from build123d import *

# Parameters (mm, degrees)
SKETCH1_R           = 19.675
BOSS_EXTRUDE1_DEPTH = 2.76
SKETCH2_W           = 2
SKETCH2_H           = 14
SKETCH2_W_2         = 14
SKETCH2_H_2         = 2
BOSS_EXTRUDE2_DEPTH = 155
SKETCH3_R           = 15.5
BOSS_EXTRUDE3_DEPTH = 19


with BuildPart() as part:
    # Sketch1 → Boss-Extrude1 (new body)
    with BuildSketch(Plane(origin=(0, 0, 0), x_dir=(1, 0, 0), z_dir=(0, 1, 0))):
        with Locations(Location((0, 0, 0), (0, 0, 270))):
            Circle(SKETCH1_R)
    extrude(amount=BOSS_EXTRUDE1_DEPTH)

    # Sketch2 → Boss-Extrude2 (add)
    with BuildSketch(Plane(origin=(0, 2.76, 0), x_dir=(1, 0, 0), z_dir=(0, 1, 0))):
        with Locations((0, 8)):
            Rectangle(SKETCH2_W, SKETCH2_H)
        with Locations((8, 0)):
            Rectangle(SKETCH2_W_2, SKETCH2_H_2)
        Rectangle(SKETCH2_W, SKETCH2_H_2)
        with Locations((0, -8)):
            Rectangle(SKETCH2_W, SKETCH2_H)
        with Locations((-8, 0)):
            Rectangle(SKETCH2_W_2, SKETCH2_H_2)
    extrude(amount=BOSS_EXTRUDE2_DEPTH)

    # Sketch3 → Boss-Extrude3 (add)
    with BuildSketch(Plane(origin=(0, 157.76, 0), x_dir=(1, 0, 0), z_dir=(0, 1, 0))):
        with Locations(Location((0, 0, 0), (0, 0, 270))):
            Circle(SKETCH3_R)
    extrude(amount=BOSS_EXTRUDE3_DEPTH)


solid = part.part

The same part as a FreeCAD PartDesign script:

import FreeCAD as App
import Part
import Sketcher
from FreeCAD import Vector
Q = App.Units.Quantity


def add_polygon(sketch, points):
    """Adds a closed chain of lines whose ends are joined by coincident constraints."""
    first, n = sketch.GeometryCount, len(points)
    for a, b in zip(points, points[1:] + points[:1]):
        sketch.addGeometry(Part.LineSegment(App.Vector(*a, 0), App.Vector(*b, 0)), False)
    for i in range(n):
        sketch.addConstraint(Sketcher.Constraint("Coincident", first + i, 2, first + (i + 1) % n, 1))

doc = App.newDocument("Part")
body = doc.addObject("PartDesign::Body", "Body")

sketch1 = body.newObject("Sketcher::SketchObject", "Sketch")
sketch1.AttachmentSupport = (doc.getObject("XZ_Plane"), [""])
sketch1.MapMode = "FlatFace"
sketch1.addGeometry(Part.Circle(Vector(0, 0, 0), Vector(0, 0, 1), 20), False)
sketch1.addConstraint(Sketcher.Constraint("Coincident", 0, 3, -1, 1))
sketch1.addConstraint(Sketcher.Constraint("Diameter", 0, Q("39.35 mm")))
pad1 = body.newObject("PartDesign::Pad", "Pad")
pad1.Profile = sketch1
pad1.Length = 2.76
pad1.Reversed = True

sketch2 = body.newObject("Sketcher::SketchObject", "Sketch001")
sketch2.AttachmentSupport = (doc.getObject("XZ_Plane"), [""])
sketch2.MapMode = "FlatFace"
sketch2.AttachmentOffset = App.Placement(Vector(0, 0, -2.76), App.Rotation())
add_polygon(sketch2, [(-1, -15), (-1, -1), (-15, -1), (-15, 1), (-1, 1), (-1, 15), (1, 15), (1, 1), (15, 1), (15, -1), (1, -1), (1, -15)])
sketch2.addConstraint(Sketcher.Constraint("Vertical", 0))
sketch2.addConstraint(Sketcher.Constraint("Horizontal", 1))
sketch2.addConstraint(Sketcher.Constraint("Vertical", 2))
sketch2.addConstraint(Sketcher.Constraint("Horizontal", 3))
sketch2.addConstraint(Sketcher.Constraint("Vertical", 4))
sketch2.addConstraint(Sketcher.Constraint("Horizontal", 5))
sketch2.addConstraint(Sketcher.Constraint("Vertical", 6))
sketch2.addConstraint(Sketcher.Constraint("Horizontal", 7))
sketch2.addConstraint(Sketcher.Constraint("Vertical", 8))
sketch2.addConstraint(Sketcher.Constraint("Horizontal", 9))
sketch2.addConstraint(Sketcher.Constraint("Vertical", 10))
sketch2.addConstraint(Sketcher.Constraint("Horizontal", 11))
sketch2.addConstraint(Sketcher.Constraint("Symmetric", 0, 2, 6, 2, -1, 1))
sketch2.addConstraint(Sketcher.Constraint("Symmetric", 2, 2, 8, 2, -1, 1))
sketch2.addConstraint(Sketcher.Constraint("Symmetric", 4, 2, 10, 2, -1, 1))
sketch2.addConstraint(Sketcher.Constraint("Symmetric", 3, 2, 6, 2, -2))
sketch2.addConstraint(Sketcher.Constraint("Equal", 9, 0))
sketch2.addConstraint(Sketcher.Constraint("Equal", 11, 2))
sketch2.addConstraint(Sketcher.Constraint("DistanceX", 1, 2, 1, 1, Q("14 mm")))
sketch2.addConstraint(Sketcher.Constraint("DistanceX", 5, 1, 5, 2, Q("2 mm")))
pad2 = body.newObject("PartDesign::Pad", "Pad001")
pad2.Profile = sketch2
pad2.Length = 155
pad2.Reversed = True

sketch3 = body.newObject("Sketcher::SketchObject", "Sketch002")
sketch3.AttachmentSupport = (doc.getObject("XZ_Plane"), [""])
sketch3.MapMode = "FlatFace"
sketch3.AttachmentOffset = App.Placement(Vector(0, 0, -157.76), App.Rotation())
sketch3.addGeometry(Part.Circle(Vector(0, 0, 0), Vector(0, 0, 1), 16), False)
sketch3.addConstraint(Sketcher.Constraint("Coincident", 0, 3, -1, 1))
sketch3.addConstraint(Sketcher.Constraint("Diameter", 0, Q("31 mm")))
pad3 = body.newObject("PartDesign::Pad", "Pad002")
pad3.Profile = sketch3
pad3.Length = 19
pad3.Reversed = True

doc.recompute()
